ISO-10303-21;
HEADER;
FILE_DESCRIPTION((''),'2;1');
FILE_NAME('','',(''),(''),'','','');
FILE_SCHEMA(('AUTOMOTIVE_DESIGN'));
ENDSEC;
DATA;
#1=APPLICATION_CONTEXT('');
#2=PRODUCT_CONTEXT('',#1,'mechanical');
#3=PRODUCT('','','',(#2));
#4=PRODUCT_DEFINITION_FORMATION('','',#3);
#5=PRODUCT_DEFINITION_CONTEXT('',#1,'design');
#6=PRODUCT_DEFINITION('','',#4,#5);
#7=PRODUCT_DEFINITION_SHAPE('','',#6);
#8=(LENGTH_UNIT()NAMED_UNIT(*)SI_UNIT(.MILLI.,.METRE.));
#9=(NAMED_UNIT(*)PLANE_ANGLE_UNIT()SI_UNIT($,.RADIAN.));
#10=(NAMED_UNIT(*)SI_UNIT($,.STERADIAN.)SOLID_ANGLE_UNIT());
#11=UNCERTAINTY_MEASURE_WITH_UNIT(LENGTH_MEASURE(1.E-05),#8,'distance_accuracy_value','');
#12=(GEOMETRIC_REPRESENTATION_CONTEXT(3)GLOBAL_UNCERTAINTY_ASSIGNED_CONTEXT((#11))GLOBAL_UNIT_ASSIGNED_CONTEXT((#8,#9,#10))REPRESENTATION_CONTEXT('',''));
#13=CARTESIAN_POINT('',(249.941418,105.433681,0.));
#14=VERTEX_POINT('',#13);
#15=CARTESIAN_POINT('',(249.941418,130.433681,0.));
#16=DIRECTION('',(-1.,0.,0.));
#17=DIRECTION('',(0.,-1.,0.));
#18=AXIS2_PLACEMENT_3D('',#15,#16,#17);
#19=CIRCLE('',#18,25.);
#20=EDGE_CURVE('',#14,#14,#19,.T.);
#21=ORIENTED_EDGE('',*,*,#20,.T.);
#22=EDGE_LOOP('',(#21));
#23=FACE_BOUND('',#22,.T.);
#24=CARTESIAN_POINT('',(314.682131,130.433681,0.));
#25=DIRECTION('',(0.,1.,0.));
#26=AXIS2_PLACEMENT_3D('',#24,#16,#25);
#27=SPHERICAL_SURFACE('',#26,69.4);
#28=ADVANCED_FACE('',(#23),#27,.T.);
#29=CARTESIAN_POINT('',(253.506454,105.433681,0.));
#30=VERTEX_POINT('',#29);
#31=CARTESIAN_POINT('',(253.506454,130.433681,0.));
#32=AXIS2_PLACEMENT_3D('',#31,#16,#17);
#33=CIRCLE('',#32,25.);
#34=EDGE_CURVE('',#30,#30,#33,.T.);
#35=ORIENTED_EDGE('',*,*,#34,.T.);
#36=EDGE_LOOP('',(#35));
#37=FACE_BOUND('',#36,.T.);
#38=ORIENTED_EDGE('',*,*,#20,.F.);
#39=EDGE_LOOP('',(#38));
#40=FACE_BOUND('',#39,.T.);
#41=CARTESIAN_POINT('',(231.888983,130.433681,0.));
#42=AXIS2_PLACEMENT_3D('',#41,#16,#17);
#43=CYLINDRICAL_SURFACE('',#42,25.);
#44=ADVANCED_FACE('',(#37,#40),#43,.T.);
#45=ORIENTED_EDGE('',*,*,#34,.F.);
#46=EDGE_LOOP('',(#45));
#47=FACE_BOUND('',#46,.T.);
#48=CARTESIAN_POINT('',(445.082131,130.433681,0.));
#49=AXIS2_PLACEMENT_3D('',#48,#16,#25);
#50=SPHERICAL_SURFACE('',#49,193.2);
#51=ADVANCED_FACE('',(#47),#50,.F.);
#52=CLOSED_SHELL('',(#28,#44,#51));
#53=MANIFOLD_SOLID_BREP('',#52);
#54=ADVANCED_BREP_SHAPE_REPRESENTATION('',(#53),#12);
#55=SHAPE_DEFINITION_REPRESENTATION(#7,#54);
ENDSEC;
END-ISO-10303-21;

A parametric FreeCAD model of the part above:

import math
import FreeCAD as App
import Part
import Sketcher
from FreeCAD import Vector
Q = App.Units.Quantity

doc = App.newDocument("Part")
body = doc.addObject("PartDesign::Body", "Body")

# Sketch on XY plane
sketch1 = doc.addObject("Sketcher::SketchObject", "Sketch")
body.addObject(sketch1)
sketch1.AttachmentSupport = (doc.XY_Plane, [""])
sketch1.MapMode = "FlatFace"
sketch1.addGeometry([
    Part.LineSegment(Vector(253.5, 155.4, 0), Vector(249.9, 155.4, 0)),
    Part.ArcOfCircle(Part.Circle(Vector(314.7, 130.4, 0), Vector(0, 0, 1), 69.4), math.radians(159), math.radians(180)),
    Part.LineSegment(Vector(245.3, 130.4, 0), Vector(251.9, 130.4, 0)),
    Part.ArcOfCircle(Part.Circle(Vector(445.1, 130.4, 0), Vector(0, 0, 1), 193.2), math.radians(172.57), math.radians(180)),
], False)
sketch1.addGeometry(Part.LineSegment(Vector(245.3, 130.4, 0), Vector(445.1, 130.4, 0)), True)  # axis
sketch1.addConstraint([
    Sketcher.Constraint("Coincident", 0, 2, 1, 1),
    Sketcher.Constraint("Coincident", 1, 2, 2, 1),
    Sketcher.Constraint("Coincident", 2, 2, 3, 2),
    Sketcher.Constraint("Coincident", 3, 1, 0, 1),
    Sketcher.Constraint("Horizontal", 0),
    Sketcher.Constraint("Horizontal", 2),
    Sketcher.Constraint("Horizontal", 4),
    Sketcher.Constraint("Coincident", 4, 1, 1, 2),
    Sketcher.Constraint("Coincident", 4, 2, 3, 3),
    Sketcher.Constraint("Horizontal", 1, 3, 3, 3),
    Sketcher.Constraint("Radius", 1, Q("69.4 mm")),
    Sketcher.Constraint("Radius", 3, Q("193.2 mm")),
    Sketcher.Constraint("DistanceX", 2, 1, 2, 2, Q("6.6 mm")),
    Sketcher.Constraint("DistanceY", 1, 3, 0, 2, Q("25 mm")),
    Sketcher.Constraint("DistanceX", -1, 1, 1, 3, Q("314.682131 mm")),
    Sketcher.Constraint("DistanceY", -1, 1, 1, 3, Q("130.433681 mm")),
])
revolution = doc.addObject("PartDesign::Revolution", "Revolution")
body.addObject(revolution)
revolution.Profile = sketch1
revolution.ReferenceAxis = (sketch1, ["Axis0"])
revolution.Angle = 360

doc.recompute()
